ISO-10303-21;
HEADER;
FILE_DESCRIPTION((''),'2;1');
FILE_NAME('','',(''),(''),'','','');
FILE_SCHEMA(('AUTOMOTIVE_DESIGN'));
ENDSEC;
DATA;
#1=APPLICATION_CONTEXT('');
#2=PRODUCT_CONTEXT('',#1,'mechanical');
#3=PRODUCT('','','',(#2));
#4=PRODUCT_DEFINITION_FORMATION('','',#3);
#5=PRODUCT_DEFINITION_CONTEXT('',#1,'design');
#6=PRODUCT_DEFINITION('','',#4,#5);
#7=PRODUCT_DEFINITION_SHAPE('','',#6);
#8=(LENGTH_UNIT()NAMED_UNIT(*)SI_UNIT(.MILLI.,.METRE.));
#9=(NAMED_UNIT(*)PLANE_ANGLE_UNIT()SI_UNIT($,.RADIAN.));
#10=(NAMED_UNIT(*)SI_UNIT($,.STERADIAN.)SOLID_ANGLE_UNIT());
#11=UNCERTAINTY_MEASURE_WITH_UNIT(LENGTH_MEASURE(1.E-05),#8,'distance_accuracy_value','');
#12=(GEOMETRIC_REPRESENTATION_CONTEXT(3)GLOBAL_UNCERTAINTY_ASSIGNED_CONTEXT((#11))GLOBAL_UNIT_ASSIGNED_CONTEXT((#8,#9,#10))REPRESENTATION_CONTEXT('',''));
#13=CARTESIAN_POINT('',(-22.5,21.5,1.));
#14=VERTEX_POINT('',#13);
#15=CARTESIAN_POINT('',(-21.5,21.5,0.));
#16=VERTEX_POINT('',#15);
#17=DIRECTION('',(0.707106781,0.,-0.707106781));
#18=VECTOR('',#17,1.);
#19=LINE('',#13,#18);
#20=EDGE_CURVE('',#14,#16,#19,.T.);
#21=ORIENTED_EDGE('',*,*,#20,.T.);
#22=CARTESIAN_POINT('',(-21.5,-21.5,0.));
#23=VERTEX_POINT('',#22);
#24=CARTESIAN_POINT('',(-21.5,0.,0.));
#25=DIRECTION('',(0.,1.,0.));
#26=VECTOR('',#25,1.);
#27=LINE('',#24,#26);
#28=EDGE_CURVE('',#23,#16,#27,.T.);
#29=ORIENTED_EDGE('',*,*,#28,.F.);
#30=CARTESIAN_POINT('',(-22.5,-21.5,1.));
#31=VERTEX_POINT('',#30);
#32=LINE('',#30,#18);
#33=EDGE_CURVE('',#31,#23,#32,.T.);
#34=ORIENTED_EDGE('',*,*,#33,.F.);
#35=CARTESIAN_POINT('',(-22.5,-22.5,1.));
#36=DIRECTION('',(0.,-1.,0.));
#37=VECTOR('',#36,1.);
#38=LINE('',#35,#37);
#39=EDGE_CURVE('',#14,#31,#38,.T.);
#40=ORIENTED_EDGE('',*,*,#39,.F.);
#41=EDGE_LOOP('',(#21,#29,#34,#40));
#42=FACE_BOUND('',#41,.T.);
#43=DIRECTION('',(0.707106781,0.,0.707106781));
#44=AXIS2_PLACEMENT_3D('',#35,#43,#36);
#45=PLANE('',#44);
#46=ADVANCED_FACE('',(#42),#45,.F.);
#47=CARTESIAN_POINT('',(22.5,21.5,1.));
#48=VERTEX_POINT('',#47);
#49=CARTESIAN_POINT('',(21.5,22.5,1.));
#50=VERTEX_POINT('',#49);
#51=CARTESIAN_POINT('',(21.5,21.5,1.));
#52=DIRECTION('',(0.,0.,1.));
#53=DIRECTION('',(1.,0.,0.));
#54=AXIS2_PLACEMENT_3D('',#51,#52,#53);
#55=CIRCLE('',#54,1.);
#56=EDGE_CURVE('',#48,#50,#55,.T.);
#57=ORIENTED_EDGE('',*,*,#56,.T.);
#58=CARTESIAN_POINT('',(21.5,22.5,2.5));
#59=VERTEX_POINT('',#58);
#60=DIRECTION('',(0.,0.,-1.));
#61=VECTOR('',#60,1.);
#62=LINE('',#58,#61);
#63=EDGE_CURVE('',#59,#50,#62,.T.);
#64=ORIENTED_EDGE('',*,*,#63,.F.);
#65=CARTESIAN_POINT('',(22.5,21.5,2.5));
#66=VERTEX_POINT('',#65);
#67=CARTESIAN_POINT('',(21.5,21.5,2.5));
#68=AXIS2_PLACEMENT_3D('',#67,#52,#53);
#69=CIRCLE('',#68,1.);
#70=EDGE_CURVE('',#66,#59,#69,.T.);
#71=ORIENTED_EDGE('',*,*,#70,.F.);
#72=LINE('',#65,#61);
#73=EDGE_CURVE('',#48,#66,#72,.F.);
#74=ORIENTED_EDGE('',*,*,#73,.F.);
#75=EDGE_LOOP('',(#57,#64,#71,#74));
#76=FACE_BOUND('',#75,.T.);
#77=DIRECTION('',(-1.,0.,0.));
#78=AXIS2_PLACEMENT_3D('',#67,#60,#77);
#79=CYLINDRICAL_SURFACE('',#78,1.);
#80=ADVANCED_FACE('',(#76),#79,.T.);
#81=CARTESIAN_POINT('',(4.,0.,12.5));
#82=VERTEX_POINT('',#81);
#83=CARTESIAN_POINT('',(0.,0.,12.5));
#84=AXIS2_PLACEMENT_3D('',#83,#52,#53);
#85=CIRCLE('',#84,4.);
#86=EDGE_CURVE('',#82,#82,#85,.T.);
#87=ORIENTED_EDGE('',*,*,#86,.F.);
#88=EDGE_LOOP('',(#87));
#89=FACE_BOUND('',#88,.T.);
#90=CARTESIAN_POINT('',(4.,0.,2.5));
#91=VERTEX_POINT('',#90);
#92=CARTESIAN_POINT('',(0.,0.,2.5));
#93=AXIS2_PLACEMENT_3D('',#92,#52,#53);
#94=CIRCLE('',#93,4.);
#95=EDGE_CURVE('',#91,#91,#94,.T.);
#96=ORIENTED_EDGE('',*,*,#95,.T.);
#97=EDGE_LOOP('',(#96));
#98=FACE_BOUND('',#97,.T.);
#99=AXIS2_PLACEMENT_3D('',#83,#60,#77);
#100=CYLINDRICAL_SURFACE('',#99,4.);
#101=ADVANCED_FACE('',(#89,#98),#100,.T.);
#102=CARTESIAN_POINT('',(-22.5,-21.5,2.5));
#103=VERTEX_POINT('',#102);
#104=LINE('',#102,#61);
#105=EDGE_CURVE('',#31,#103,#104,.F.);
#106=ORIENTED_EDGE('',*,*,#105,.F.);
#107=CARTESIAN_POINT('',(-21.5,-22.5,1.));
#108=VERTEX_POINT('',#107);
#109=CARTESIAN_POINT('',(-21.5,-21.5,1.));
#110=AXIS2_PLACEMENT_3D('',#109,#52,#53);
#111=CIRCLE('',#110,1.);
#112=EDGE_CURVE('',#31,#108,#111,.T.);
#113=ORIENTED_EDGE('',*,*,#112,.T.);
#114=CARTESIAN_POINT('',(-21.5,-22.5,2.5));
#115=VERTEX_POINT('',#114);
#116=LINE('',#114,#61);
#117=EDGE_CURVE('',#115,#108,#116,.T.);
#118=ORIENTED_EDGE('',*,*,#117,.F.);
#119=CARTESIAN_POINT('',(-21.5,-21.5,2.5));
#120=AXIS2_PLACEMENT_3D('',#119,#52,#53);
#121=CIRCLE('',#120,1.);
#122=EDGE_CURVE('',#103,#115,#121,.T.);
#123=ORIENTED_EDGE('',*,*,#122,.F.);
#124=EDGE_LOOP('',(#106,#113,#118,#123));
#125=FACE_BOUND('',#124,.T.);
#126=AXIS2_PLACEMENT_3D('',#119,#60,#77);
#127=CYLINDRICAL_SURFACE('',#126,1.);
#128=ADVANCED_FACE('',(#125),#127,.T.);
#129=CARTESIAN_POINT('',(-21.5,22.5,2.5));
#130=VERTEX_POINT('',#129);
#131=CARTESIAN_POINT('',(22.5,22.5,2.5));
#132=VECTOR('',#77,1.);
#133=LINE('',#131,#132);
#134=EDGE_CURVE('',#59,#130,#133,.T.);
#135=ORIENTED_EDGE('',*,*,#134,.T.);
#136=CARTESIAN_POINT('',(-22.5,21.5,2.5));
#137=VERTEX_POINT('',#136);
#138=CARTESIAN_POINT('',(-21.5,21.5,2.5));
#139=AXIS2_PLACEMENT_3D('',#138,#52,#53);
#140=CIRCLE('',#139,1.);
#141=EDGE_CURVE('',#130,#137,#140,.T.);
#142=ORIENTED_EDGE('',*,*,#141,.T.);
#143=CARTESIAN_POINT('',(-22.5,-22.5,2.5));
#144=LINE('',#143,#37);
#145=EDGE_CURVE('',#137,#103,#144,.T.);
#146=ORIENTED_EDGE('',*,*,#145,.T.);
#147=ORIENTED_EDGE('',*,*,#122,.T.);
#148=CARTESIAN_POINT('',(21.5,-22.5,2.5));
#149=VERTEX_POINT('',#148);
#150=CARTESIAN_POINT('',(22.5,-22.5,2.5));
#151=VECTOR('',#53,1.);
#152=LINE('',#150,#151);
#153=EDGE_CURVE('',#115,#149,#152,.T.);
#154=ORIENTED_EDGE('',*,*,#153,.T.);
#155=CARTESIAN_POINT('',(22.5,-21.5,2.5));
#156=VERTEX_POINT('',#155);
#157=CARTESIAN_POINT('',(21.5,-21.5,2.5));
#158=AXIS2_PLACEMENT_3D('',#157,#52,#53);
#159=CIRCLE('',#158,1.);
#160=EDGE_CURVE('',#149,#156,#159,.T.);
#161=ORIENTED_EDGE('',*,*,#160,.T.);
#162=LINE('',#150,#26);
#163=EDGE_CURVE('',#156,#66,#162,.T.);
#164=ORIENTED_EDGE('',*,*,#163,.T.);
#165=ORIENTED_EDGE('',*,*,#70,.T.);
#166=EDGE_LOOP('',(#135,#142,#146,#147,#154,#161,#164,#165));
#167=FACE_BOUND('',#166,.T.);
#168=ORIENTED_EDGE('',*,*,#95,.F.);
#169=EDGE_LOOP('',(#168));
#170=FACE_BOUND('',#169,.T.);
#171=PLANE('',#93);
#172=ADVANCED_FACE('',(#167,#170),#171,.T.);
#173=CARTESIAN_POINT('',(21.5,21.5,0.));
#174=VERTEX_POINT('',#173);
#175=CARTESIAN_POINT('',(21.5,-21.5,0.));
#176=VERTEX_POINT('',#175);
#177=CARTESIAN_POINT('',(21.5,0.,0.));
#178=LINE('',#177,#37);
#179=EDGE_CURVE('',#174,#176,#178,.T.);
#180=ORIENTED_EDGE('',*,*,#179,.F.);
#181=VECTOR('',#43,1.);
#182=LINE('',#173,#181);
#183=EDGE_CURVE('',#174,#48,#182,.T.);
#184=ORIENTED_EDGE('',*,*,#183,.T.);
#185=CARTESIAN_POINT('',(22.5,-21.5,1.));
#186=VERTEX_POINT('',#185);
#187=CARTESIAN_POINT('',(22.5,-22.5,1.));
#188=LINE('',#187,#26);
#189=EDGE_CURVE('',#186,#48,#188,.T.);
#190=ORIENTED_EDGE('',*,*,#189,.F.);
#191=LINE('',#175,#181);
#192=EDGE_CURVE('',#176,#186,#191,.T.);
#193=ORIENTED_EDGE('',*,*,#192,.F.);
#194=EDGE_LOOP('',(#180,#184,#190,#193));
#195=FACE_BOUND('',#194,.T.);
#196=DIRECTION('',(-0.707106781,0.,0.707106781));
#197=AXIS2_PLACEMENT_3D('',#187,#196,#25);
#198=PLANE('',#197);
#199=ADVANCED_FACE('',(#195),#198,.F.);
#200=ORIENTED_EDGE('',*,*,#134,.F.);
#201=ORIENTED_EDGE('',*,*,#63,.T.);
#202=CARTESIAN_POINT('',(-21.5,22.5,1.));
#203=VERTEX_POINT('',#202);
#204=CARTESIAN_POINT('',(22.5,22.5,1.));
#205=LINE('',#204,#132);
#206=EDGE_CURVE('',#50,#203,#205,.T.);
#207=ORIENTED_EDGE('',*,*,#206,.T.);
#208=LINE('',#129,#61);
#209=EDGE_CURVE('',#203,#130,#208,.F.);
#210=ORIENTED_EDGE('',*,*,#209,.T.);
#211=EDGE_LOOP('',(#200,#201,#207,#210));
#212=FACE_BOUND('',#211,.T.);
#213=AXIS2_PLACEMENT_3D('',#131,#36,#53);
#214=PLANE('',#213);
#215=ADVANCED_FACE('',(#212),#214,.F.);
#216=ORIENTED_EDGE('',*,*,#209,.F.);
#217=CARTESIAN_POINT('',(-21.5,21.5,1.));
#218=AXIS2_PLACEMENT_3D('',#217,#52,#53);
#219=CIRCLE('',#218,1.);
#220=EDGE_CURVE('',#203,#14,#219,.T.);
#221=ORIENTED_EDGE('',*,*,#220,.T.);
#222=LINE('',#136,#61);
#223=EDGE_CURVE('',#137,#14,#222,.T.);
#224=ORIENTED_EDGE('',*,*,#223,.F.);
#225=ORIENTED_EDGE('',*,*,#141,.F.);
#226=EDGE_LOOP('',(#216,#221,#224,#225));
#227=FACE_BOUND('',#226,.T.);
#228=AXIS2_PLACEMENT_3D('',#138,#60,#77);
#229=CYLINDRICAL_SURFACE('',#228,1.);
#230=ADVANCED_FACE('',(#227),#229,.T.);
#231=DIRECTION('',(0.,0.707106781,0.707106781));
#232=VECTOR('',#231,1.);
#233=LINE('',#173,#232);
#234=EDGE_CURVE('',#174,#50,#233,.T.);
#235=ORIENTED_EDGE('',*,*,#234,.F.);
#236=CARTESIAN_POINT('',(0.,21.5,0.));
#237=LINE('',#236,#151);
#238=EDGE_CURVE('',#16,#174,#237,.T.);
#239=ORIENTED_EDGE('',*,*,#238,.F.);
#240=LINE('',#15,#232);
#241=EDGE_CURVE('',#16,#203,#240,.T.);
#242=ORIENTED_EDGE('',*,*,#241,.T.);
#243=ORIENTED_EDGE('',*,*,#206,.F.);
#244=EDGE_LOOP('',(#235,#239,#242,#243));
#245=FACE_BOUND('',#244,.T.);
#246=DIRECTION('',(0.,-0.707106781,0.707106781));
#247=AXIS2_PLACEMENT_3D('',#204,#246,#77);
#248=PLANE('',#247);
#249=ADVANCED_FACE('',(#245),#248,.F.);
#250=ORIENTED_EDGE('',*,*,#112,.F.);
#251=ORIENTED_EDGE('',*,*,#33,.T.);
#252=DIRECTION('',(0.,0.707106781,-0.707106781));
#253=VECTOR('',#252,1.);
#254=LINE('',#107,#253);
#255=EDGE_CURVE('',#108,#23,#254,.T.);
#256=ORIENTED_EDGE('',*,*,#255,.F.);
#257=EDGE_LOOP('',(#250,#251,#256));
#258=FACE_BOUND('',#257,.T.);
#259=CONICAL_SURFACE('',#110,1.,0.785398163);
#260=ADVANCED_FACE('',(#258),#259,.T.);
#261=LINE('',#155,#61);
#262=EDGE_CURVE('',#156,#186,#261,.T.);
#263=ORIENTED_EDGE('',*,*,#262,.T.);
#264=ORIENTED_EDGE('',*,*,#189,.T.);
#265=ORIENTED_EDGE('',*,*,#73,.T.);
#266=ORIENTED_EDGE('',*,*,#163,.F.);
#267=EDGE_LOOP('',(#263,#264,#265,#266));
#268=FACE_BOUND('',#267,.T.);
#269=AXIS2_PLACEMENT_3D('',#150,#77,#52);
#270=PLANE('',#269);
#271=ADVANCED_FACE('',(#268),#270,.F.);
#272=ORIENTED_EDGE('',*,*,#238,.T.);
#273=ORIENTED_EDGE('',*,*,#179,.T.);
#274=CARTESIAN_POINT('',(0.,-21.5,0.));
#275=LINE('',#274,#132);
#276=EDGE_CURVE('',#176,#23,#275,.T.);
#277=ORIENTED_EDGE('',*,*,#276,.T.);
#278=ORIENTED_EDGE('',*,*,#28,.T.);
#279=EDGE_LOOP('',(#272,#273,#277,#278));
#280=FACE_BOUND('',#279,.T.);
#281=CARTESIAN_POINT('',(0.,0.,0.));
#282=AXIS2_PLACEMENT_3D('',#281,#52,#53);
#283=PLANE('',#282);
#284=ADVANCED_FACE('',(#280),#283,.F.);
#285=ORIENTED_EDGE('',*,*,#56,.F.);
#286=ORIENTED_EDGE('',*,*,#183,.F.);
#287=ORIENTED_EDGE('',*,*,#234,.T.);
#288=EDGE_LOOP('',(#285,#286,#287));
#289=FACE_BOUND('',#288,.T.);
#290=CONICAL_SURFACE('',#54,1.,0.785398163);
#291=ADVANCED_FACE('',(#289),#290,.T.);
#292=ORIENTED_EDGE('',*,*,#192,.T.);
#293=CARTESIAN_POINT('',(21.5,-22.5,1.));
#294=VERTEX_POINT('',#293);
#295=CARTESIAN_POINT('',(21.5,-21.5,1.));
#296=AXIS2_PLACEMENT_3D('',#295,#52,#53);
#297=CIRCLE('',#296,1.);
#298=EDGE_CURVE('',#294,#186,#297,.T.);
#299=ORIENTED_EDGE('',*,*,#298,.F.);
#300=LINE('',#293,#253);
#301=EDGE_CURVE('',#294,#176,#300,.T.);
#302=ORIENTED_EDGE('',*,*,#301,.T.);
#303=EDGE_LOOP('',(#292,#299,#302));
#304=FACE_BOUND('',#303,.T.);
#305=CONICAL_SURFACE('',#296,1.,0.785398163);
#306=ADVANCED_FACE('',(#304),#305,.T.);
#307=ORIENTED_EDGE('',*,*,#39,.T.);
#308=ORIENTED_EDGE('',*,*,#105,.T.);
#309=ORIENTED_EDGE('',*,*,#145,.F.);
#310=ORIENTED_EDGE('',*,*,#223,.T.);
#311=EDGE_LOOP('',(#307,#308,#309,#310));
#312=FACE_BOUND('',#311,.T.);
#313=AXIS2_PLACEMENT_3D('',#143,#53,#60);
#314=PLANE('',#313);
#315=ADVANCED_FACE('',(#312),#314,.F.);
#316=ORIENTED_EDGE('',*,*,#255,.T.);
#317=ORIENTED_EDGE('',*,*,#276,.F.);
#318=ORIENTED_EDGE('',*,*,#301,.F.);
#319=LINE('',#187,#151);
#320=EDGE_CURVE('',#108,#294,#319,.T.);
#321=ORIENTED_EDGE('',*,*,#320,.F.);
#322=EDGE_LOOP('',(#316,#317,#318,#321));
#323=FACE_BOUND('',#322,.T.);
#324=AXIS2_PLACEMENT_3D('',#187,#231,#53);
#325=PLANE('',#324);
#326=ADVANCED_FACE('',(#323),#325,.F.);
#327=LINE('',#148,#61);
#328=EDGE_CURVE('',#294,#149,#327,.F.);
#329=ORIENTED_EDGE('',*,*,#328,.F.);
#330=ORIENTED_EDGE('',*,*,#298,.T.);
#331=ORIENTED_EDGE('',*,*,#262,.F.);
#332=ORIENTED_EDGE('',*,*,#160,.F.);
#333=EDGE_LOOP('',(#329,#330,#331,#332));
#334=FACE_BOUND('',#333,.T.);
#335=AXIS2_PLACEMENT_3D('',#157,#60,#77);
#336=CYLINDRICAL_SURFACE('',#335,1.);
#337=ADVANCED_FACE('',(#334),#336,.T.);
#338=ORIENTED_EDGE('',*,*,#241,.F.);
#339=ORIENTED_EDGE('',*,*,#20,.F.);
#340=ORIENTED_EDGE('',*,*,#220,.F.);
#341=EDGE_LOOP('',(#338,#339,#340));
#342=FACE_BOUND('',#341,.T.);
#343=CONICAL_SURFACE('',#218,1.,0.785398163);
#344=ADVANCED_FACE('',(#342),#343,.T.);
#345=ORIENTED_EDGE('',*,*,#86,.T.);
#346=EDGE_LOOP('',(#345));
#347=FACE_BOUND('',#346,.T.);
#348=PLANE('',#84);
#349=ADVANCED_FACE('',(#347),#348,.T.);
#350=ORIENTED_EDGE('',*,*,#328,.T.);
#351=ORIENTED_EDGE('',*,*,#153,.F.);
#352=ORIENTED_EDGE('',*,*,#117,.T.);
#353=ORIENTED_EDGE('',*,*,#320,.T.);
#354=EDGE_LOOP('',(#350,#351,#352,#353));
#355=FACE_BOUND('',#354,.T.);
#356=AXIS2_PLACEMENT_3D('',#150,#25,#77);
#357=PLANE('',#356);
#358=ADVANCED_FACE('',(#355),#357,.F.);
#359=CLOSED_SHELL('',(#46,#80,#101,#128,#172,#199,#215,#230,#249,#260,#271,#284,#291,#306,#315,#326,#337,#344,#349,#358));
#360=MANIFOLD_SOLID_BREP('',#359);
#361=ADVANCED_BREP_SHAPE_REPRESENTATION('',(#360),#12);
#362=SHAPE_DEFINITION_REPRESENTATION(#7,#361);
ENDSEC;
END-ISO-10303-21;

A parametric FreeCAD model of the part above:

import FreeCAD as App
import Part
import Sketcher

V = App.Vector
Q = App.Units.Quantity


def edges_at(feature, points):
    """Names of the edges that pass closest to the given points."""
    edges = feature.Shape.Edges
    near = lambda p: min(range(len(edges)), key=lambda i: edges[i].distToShape(Part.Vertex(*p))[0])
    return sorted({f"Edge{near(p) + 1}" for p in points})


def add_polygon(sketch, points):
    """Adds a closed chain of lines whose ends are joined by coincident constraints."""
    first, n = sketch.GeometryCount, len(points)
    for a, b in zip(points, points[1:] + points[:1]):
        sketch.addGeometry(Part.LineSegment(App.Vector(*a, 0), App.Vector(*b, 0)), False)
    for i in range(n):
        sketch.addConstraint(Sketcher.Constraint("Coincident", first + i, 2, first + (i + 1) % n, 1))

doc = App.newDocument("Part")
body = doc.addObject("PartDesign::Body", "Body")

# Sketch on XY plane
sketch1 = body.newObject("Sketcher::SketchObject", "Sketch")
sketch1.AttachmentSupport = (doc.getObject("XY_Plane"), [""])
sketch1.MapMode = "FlatFace"
add_polygon(sketch1, [(-22, 22), (-22, -22), (22, -22), (22, 22)])  # lines 0-3
sketch1.addConstraint(Sketcher.Constraint("Vertical", 0))
sketch1.addConstraint(Sketcher.Constraint("Horizontal", 1))
sketch1.addConstraint(Sketcher.Constraint("Vertical", 2))
sketch1.addConstraint(Sketcher.Constraint("Horizontal", 3))
sketch1.addConstraint(Sketcher.Constraint("Symmetric", 0, 2, 2, 2, -1, 1))
sketch1.addConstraint(Sketcher.Constraint("Equal", 3, 0))
sketch1.addConstraint(Sketcher.Constraint("DistanceX", 1, 1, 1, 2, Q("45 mm")))
pad1 = body.newObject("PartDesign::Pad", "Pad")
pad1.Profile = sketch1
pad1.Length = 2.5
doc.recompute()

fillet = body.newObject("PartDesign::Fillet", "Fillet")
fillet.Base = (pad1, edges_at(pad1, [
    (-22.5, 22.5, 1.25),
    (22.5, 22.5, 1.25),
    (22.5, -22.5, 1.25),
    (-22.5, -22.5, 1.25),
]))
fillet.Radius = 1

# Sketch on XY plane
sketch2 = body.newObject("Sketcher::SketchObject", "Sketch001")
sketch2.AttachmentSupport = (doc.getObject("XY_Plane"), [""])
sketch2.MapMode = "FlatFace"
sketch2.AttachmentOffset = App.Placement(V(0, 0, 2.5), App.Rotation())
sketch2.addGeometry(Part.Circle(V(0, 0, 0), V(0, 0, 1), 4), False)
sketch2.addConstraint(Sketcher.Constraint("Coincident", 0, 3, -1, 1))
sketch2.addConstraint(Sketcher.Constraint("Diameter", 0, Q("8 mm")))
pad2 = body.newObject("PartDesign::Pad", "Pad001")
pad2.Profile = sketch2
pad2.Length = 10
doc.recompute()

chamfer = body.newObject("PartDesign::Chamfer", "Chamfer")
chamfer.Base = (pad2, edges_at(pad2, [
    (0, -22.5, 0),
    (-22.5, 0, 0),
    (0, 22.5, 0),
    (22.5, 0, 0),
    (22.207, 22.207, 0),
    (-22.207, 22.207, 0),
    (22.207, -22.207, 0),
    (-22.207, -22.207, 0),
]))
chamfer.Size = 1

doc.recompute()
